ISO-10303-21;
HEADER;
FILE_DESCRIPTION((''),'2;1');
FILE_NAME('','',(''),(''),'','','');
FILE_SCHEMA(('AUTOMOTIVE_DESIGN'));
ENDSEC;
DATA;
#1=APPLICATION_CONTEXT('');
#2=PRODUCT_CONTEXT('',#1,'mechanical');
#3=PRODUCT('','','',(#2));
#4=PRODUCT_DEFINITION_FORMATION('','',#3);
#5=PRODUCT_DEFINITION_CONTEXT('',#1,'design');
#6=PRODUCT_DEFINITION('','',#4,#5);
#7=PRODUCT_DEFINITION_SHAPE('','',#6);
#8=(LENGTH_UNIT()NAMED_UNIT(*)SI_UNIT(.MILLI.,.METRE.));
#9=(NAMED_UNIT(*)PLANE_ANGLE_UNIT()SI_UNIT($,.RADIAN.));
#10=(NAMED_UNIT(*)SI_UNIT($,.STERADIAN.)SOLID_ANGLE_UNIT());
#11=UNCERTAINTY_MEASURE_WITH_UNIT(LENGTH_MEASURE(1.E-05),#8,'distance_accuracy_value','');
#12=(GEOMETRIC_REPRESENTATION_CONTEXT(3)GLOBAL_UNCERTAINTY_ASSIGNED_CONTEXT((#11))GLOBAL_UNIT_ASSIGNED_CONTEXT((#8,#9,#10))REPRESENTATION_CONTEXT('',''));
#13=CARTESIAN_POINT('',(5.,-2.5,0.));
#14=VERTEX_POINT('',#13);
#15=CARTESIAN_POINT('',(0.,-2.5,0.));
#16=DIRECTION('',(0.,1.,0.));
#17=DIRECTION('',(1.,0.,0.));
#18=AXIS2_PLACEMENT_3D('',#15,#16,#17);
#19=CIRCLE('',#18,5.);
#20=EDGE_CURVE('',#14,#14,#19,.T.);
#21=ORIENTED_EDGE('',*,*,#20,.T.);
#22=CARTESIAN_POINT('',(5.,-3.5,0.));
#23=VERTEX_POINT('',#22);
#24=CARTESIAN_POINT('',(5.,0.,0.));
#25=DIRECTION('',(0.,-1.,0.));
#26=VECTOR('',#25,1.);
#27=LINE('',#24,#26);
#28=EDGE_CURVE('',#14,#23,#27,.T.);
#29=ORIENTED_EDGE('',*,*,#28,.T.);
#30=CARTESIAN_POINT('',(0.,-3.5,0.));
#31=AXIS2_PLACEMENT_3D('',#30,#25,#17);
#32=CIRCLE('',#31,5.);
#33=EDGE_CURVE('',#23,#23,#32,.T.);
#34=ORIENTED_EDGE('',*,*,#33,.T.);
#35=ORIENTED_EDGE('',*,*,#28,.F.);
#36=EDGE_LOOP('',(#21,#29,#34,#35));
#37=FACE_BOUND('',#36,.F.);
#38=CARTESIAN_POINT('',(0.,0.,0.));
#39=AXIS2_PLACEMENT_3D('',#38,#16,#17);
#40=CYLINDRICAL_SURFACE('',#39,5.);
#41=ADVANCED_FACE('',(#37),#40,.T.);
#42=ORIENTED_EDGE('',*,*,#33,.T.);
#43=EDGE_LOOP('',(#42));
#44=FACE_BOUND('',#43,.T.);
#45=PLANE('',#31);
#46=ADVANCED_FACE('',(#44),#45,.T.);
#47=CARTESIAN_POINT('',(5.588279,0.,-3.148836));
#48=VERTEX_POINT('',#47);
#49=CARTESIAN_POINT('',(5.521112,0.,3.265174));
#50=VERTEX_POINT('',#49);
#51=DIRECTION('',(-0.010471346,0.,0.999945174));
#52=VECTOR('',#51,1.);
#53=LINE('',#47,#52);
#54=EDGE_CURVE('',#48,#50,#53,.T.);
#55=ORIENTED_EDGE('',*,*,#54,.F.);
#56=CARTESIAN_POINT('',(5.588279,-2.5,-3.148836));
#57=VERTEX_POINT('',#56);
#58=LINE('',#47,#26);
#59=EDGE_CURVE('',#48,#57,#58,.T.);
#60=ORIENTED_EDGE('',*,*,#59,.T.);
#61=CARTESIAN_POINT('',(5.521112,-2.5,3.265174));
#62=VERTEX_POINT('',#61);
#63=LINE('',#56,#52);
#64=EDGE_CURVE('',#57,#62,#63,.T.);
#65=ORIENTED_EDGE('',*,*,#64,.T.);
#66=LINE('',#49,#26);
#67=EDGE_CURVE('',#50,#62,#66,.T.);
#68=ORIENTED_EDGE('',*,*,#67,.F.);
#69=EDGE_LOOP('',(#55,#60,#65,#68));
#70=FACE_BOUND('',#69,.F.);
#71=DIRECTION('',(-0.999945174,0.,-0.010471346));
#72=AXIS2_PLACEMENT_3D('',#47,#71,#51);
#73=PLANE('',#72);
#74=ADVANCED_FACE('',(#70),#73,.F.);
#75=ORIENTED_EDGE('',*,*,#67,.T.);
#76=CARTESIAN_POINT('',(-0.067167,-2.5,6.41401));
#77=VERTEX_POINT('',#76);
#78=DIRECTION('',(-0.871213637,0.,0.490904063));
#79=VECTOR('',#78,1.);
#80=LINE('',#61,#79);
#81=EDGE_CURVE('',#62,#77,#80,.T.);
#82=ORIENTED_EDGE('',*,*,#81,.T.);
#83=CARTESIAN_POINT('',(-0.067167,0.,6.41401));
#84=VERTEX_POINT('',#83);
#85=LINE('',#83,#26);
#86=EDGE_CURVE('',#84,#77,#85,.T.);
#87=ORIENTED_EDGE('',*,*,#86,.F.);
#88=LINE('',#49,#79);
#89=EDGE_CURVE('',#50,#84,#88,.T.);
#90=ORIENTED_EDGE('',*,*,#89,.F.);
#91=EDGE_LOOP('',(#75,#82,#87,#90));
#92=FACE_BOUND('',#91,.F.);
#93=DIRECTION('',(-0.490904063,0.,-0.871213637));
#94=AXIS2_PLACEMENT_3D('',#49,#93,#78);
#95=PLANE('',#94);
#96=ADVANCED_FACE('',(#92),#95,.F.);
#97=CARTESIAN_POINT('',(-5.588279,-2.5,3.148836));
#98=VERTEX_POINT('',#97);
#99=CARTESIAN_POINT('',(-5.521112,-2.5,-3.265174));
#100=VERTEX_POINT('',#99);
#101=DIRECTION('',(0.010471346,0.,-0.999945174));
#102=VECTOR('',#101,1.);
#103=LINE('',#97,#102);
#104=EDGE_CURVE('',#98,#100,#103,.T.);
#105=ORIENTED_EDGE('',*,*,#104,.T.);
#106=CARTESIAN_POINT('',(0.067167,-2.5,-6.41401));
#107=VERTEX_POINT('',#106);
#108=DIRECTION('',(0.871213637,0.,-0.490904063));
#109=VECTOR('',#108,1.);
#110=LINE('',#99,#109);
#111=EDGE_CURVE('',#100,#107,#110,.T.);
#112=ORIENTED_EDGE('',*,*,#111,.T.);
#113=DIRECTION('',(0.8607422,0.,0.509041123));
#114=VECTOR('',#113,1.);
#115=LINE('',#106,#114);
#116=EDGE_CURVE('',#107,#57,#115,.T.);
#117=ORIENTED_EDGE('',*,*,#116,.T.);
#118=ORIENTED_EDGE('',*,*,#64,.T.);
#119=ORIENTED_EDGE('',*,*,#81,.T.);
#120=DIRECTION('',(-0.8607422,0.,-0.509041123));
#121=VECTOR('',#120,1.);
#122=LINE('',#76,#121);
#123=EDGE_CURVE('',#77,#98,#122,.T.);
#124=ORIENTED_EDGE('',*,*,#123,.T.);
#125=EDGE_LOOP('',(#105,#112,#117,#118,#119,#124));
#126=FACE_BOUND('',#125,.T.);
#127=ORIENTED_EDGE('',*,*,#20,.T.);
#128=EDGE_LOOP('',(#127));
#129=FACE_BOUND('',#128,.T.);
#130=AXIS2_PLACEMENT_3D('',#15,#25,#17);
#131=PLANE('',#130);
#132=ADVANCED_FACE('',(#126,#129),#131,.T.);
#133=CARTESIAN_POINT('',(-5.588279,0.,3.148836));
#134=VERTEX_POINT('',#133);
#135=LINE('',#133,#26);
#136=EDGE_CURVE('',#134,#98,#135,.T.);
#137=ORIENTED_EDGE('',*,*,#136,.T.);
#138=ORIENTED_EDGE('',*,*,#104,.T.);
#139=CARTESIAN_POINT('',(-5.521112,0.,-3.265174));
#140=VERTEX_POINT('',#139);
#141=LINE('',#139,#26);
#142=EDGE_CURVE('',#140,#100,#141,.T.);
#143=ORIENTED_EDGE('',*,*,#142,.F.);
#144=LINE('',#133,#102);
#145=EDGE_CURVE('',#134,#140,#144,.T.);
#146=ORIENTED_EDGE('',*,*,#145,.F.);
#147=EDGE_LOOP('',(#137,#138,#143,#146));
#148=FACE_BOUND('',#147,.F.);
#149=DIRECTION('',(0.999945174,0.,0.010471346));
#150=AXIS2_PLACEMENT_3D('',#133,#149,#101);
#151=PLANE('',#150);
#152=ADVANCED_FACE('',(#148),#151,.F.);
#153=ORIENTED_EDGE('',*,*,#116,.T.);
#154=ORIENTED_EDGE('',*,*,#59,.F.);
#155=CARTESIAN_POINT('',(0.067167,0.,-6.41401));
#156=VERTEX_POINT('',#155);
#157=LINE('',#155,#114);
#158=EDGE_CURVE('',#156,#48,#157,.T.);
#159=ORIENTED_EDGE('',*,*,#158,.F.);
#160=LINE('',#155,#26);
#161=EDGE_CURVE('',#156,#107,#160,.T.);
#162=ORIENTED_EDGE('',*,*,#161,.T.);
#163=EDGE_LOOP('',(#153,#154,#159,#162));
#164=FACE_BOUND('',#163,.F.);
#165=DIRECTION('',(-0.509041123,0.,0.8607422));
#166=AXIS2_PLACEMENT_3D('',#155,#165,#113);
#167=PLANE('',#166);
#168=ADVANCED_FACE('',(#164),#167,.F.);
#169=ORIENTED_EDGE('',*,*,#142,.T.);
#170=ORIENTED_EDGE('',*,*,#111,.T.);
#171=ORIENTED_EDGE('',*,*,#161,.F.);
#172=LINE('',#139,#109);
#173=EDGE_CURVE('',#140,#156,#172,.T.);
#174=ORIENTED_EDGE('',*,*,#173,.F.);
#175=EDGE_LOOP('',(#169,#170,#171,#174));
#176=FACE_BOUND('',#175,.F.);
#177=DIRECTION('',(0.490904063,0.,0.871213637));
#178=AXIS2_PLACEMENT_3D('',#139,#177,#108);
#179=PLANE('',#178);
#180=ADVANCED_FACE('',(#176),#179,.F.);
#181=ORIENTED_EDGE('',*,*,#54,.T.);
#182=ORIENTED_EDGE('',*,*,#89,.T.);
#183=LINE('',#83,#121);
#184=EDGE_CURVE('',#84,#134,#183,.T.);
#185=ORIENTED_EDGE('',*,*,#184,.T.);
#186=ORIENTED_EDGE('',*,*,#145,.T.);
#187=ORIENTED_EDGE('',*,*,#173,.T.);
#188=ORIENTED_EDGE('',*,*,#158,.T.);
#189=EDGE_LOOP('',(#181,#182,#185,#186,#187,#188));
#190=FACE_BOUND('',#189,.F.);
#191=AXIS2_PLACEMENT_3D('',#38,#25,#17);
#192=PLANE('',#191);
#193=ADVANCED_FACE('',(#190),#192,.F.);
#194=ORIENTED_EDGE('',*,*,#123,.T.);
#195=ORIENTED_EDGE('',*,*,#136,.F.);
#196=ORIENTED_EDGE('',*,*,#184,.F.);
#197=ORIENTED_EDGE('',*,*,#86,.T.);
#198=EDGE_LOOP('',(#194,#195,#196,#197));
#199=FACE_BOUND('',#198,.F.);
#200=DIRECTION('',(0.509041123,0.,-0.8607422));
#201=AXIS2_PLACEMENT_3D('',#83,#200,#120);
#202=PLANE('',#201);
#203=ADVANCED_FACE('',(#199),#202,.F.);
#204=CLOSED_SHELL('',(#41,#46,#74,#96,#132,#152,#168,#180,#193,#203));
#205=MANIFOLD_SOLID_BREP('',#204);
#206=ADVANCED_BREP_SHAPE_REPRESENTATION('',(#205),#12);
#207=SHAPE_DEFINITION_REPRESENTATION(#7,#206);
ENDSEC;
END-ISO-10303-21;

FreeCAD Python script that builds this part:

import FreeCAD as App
import Part
import Sketcher
Q = App.Units.Quantity


def add_polygon(sketch, points):
    """Adds a closed chain of lines whose ends are joined by coincident constraints."""
    first, n = sketch.GeometryCount, len(points)
    for a, b in zip(points, points[1:] + points[:1]):
        sketch.addGeometry(Part.LineSegment(App.Vector(*a, 0), App.Vector(*b, 0)), False)
    for i in range(n):
        sketch.addConstraint(Sketcher.Constraint("Coincident", first + i, 2, first + (i + 1) % n, 1))

doc = App.newDocument("Part")
body = doc.addObject("PartDesign::Body", "Body")

# Sketch on XZ plane
sketch1 = body.newObject("Sketcher::SketchObject", "Sketch")
sketch1.AttachmentSupport = (doc.getObject("XZ_Plane"), [""])
sketch1.MapMode = "FlatFace"
add_polygon(sketch1, [(0, 6), (-6, 3), (-6, -3), (0, -6), (6, -3), (6, 3)])  # lines 0-5
sketch1.addConstraint(Sketcher.Constraint("Symmetric", 0, 2, 3, 2, -1, 1))
sketch1.addConstraint(Sketcher.Constraint("Symmetric", 1, 2, 4, 2, -1, 1))
sketch1.addConstraint(Sketcher.Constraint("Symmetric", 2, 2, 5, 2, -1, 1))
sketch1.addConstraint(Sketcher.Constraint("Equal", 0, 1))
sketch1.addConstraint(Sketcher.Constraint("Equal", 1, 2))
sketch1.addConstraint(Sketcher.Constraint("Angle", 0, Q("-149.400019 deg")))
sketch1.addConstraint(Sketcher.Constraint("Distance", 0, 6.414362))
sketch1.addConstraint(Sketcher.Constraint("DistanceX", 0, 2, -1, 1, 5.588279))
sketch1.addConstraint(Sketcher.Constraint("DistanceX", 1, 2, -1, 1, 5.521112))
pad1 = body.newObject("PartDesign::Pad", "Pad")
pad1.Profile = sketch1
pad1.Length = 2.5

# Sketch on XZ plane
sketch2 = body.newObject("Sketcher::SketchObject", "Sketch001")
sketch2.AttachmentSupport = (doc.getObject("XZ_Plane"), [""])
sketch2.MapMode = "FlatFace"
sketch2.addGeometry(Part.Circle(App.Vector(0, 0, 0), App.Vector(0, 0, 1), 5), False)
sketch2.addConstraint(Sketcher.Constraint("Coincident", 0, 3, -1, 1))
sketch2.addConstraint(Sketcher.Constraint("Diameter", 0, 10.0))
pad2 = body.newObject("PartDesign::Pad", "Pad001")
pad2.Profile = sketch2
pad2.Length = 3.5

doc.recompute()
